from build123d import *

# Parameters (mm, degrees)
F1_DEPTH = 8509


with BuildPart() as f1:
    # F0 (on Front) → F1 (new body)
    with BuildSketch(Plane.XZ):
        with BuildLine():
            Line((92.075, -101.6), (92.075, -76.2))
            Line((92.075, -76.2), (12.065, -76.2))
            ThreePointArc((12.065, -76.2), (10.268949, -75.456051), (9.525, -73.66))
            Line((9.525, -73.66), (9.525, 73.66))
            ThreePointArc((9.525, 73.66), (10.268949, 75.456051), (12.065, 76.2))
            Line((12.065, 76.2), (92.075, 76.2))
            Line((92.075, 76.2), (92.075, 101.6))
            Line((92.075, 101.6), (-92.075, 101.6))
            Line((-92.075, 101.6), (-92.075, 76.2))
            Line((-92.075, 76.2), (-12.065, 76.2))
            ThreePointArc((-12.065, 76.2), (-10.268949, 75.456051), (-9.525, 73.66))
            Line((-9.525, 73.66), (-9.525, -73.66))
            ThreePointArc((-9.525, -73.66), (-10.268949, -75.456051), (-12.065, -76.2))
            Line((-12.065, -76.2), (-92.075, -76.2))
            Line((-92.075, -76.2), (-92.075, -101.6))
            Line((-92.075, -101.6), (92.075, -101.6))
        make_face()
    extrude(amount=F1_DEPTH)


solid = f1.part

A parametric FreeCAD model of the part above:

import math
import FreeCAD as App
import Part
import Sketcher
from FreeCAD import Vector
Q = App.Units.Quantity

doc = App.newDocument("Part")
body = doc.addObject("PartDesign::Body", "Body")

# Sketch on XZ plane
sketch1 = doc.addObject("Sketcher::SketchObject", "Sketch")
body.addObject(sketch1)
sketch1.AttachmentSupport = (doc.XZ_Plane, [""])
sketch1.MapMode = "FlatFace"
sketch1.addGeometry([
    Part.LineSegment(Vector(92.1, -101.6, 0), Vector(92.1, -76.2, 0)),  # 0
    Part.LineSegment(Vector(92.1, -76.2, 0), Vector(12.1, -76.2, 0)),  # 1
    Part.ArcOfCircle(Part.Circle(Vector(12.1, -73.7, 0), Vector(0, 0, 1), 2.5), math.radians(-180), math.radians(-90)),  # 2
    Part.LineSegment(Vector(9.5, -73.7, 0), Vector(9.5, 73.7, 0)),  # 3
    Part.ArcOfCircle(Part.Circle(Vector(12.1, 73.7, 0), Vector(0, 0, 1), 2.5), math.radians(90), math.radians(180)),  # 4
    Part.LineSegment(Vector(12.1, 76.2, 0), Vector(92.1, 76.2, 0)),  # 5
    Part.LineSegment(Vector(92.1, 76.2, 0), Vector(92.1, 101.6, 0)),  # 6
    Part.LineSegment(Vector(92.1, 101.6, 0), Vector(-92.1, 101.6, 0)),  # 7
    Part.LineSegment(Vector(-92.1, 101.6, 0), Vector(-92.1, 76.2, 0)),  # 8
    Part.LineSegment(Vector(-92.1, 76.2, 0), Vector(-12.1, 76.2, 0)),  # 9
    Part.ArcOfCircle(Part.Circle(Vector(-12.1, 73.7, 0), Vector(0, 0, 1), 2.5), math.radians(0), math.radians(90)),  # 10
    Part.LineSegment(Vector(-9.5, 73.7, 0), Vector(-9.5, -73.7, 0)),  # 11
    Part.ArcOfCircle(Part.Circle(Vector(-12.1, -73.7, 0), Vector(0, 0, 1), 2.5), math.radians(-90), math.radians(0)),  # 12
    Part.LineSegment(Vector(-12.1, -76.2, 0), Vector(-92.1, -76.2, 0)),  # 13
    Part.LineSegment(Vector(-92.1, -76.2, 0), Vector(-92.1, -101.6, 0)),  # 14
    Part.LineSegment(Vector(-92.1, -101.6, 0), Vector(92.1, -101.6, 0)),  # 15
], False)
sketch1.addConstraint([
    Sketcher.Constraint("Coincident", 0, 2, 1, 1),
    Sketcher.Constraint("Tangent", 1, 2, 2, 2),
    Sketcher.Constraint("Tangent", 2, 1, 3, 1),
    Sketcher.Constraint("Tangent", 3, 2, 4, 2),
    Sketcher.Constraint("Tangent", 4, 1, 5, 1),
    Sketcher.Constraint("Coincident", 5, 2, 6, 1),
    Sketcher.Constraint("Coincident", 6, 2, 7, 1),
    Sketcher.Constraint("Coincident", 7, 2, 8, 1),
    Sketcher.Constraint("Coincident", 8, 2, 9, 1),
    Sketcher.Constraint("Tangent", 9, 2, 10, 2),
    Sketcher.Constraint("Tangent", 10, 1, 11, 1),
    Sketcher.Constraint("Tangent", 11, 2, 12, 2),
    Sketcher.Constraint("Tangent", 12, 1, 13, 1),
    Sketcher.Constraint("Coincident", 13, 2, 14, 1),
    Sketcher.Constraint("Coincident", 14, 2, 15, 1),
    Sketcher.Constraint("Coincident", 15, 2, 0, 1),
    Sketcher.Constraint("Vertical", 0),
    Sketcher.Constraint("Horizontal", 1),
    Sketcher.Constraint("Vertical", 3),
    Sketcher.Constraint("Horizontal", 5),
    Sketcher.Constraint("Vertical", 6),
    Sketcher.Constraint("Horizontal", 7),
    Sketcher.Constraint("Vertical", 8),
    Sketcher.Constraint("Horizontal", 9),
    Sketcher.Constraint("Vertical", 11),
    Sketcher.Constraint("Horizontal", 13),
    Sketcher.Constraint("Vertical", 14),
    Sketcher.Constraint("Horizontal", 15),
    Sketcher.Constraint("Equal", 2, 4),
    Sketcher.Constraint("Equal", 4, 10),
    Sketcher.Constraint("Equal", 10, 12),
    Sketcher.Constraint("Symmetric", 2, 3, 10, 3, -1, 1),
    Sketcher.Constraint("Symmetric", 5, 2, 13, 2, -1, 1),
    Sketcher.Constraint("Symmetric", 7, 2, 15, 2, -1, 1),
    Sketcher.Constraint("Symmetric", 5, 2, 8, 2, -2),
    Sketcher.Constraint("Radius", 2, Q("0.1 in")),
    Sketcher.Constraint("DistanceY", 0, 1, 0, 2, Q("1 in")),
    Sketcher.Constraint("DistanceY", 3, 1, 3, 2, Q("5.8 in")),
    Sketcher.Constraint("DistanceX", 7, 2, 3, 2, Q("4 in")),
    Sketcher.Constraint("DistanceX", 1, 2, 1, 1, Q("3.15 in")),
])
pad1 = doc.addObject("PartDesign::Pad", "Pad")
body.addObject(pad1)
pad1.Profile = sketch1
pad1.Length = Q("335 in")

doc.recompute()
